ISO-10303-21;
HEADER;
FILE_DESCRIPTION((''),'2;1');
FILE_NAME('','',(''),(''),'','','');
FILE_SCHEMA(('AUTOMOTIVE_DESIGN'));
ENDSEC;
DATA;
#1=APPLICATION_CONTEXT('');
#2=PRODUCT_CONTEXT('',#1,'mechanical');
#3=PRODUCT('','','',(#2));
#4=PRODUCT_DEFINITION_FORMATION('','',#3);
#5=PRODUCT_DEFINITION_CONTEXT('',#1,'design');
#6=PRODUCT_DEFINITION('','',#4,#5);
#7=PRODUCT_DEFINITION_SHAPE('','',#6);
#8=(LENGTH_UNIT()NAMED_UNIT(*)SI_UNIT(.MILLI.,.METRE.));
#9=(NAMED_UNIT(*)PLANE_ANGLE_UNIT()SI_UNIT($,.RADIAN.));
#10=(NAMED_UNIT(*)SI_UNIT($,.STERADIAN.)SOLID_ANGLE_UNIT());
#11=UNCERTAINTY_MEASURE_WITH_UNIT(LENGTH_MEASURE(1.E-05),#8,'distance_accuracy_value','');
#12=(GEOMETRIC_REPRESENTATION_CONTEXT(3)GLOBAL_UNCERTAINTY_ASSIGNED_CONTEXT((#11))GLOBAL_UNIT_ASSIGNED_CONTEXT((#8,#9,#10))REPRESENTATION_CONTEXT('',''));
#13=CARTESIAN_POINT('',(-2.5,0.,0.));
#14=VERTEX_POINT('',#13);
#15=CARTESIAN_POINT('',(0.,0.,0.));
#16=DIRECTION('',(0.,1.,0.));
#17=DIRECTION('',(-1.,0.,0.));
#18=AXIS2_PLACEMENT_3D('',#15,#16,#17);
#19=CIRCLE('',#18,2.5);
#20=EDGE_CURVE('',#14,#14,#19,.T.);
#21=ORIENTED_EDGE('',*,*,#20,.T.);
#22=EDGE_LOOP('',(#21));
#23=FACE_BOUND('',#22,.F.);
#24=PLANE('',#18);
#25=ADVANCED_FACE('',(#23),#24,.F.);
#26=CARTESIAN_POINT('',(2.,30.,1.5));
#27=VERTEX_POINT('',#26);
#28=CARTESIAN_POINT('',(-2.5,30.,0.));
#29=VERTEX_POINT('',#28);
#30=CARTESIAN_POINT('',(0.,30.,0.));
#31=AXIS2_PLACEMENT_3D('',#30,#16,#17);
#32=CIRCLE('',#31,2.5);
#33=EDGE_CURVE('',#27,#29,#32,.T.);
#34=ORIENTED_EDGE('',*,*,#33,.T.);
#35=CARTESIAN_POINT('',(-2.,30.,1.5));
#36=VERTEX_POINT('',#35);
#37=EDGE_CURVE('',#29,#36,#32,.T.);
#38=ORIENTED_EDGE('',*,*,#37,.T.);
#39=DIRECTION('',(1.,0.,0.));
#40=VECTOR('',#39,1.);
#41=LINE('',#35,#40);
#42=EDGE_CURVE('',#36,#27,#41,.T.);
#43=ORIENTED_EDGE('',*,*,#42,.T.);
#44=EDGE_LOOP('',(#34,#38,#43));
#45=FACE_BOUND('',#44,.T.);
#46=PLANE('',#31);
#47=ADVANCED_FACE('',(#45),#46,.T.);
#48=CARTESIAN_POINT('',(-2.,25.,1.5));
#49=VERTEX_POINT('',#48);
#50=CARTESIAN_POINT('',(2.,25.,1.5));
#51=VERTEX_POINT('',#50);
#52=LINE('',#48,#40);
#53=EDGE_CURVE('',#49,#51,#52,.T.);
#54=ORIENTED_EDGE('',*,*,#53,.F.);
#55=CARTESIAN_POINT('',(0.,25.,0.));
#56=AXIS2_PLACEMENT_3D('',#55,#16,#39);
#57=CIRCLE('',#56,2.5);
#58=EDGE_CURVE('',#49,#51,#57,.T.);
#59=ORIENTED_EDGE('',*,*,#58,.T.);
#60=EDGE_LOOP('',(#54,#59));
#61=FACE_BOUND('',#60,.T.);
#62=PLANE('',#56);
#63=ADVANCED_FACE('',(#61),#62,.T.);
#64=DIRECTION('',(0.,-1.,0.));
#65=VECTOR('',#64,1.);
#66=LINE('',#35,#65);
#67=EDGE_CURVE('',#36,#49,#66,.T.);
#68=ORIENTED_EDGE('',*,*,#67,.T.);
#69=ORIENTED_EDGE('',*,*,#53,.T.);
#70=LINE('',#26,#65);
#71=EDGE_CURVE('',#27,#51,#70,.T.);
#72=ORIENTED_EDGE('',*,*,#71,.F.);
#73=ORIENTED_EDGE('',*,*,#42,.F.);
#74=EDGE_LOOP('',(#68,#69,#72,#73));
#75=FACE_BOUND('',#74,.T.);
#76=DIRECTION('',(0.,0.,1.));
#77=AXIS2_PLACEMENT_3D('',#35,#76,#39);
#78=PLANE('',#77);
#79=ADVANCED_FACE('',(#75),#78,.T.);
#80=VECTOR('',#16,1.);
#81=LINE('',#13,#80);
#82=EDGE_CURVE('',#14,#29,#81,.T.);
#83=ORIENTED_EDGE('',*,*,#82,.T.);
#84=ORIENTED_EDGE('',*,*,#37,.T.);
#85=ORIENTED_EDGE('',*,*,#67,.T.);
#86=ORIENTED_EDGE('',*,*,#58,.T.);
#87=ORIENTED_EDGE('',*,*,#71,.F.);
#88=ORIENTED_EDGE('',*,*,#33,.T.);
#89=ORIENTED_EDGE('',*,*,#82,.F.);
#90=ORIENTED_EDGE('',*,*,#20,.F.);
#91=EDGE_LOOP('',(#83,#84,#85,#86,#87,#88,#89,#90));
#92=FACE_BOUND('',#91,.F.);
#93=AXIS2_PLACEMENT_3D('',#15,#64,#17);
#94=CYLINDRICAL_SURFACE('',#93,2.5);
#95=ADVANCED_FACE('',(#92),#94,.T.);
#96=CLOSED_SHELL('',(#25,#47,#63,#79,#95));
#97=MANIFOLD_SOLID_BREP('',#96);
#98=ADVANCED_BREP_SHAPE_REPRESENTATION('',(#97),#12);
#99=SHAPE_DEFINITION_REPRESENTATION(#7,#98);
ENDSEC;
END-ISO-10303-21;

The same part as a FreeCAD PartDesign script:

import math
import FreeCAD as App
import Part
import Sketcher

doc = App.newDocument("Part")
params = doc.addObject("Spreadsheet::Sheet", "Params")
for row, (alias, value) in enumerate([
    ("sketch1_diameter", "5 mm"),
    ("pad1_length", "30 mm"),
    ("sketch2_radius", "2.5 mm"),
    ("pocket1_length", "5 mm"),
], start=1):
    params.set(f"A{row}", alias)
    params.set(f"B{row}", "=" + value)
    params.setAlias(f"B{row}", alias)

body = doc.addObject("PartDesign::Body", "Body")

sketch1 = body.newObject("Sketcher::SketchObject", "Sketch")
sketch1.AttachmentSupport = (doc.getObject("XZ_Plane"), [""])
sketch1.MapMode = "FlatFace"
sketch1.addGeometry(Part.Circle(App.Vector(0, 0, 0), App.Vector(0, 0, 1), 2.5), False)
sketch1.addConstraint([
    Sketcher.Constraint("Coincident", 0, 3, -1, 1),
    Sketcher.Constraint("Diameter", 0, 5.0),
])
sketch1.setExpression("Constraints[1]", "Params.sketch1_diameter")
pad1 = body.newObject("PartDesign::Pad", "Pad")
pad1.Profile = sketch1
pad1.setExpression("Length", "Params.pad1_length")
pad1.Reversed = True

sketch2 = body.newObject("Sketcher::SketchObject", "Sketch001")
sketch2.AttachmentSupport = (doc.getObject("XZ_Plane"), [""])
sketch2.MapMode = "FlatFace"
sketch2.AttachmentOffset = App.Placement(App.Vector(0, 0, -30), App.Rotation())
sketch2.addGeometry([
    Part.LineSegment(App.Vector(2, 1.5, 0), App.Vector(-2, 1.5, 0)),
    Part.ArcOfCircle(Part.Circle(App.Vector(0, 0, 0), App.Vector(0, 0, 1), 2.5), math.radians(37), math.radians(143)),
], False)
sketch2.addConstraint([
    Sketcher.Constraint("Coincident", 0, 1, 1, 1),
    Sketcher.Constraint("Coincident", 1, 2, 0, 2),
    Sketcher.Constraint("Horizontal", 0),
    Sketcher.Constraint("Coincident", 1, 3, -1, 1),
    Sketcher.Constraint("DistanceY", -1, 1, 0, 1, 1.5),
    Sketcher.Constraint("Radius", 1, 2.5),
])
sketch2.setExpression("Constraints[5]", "Params.sketch2_radius")
pocket1 = body.newObject("PartDesign::Pocket", "Pocket")
pocket1.Profile = sketch2
pocket1.setExpression("Length", "Params.pocket1_length")
pocket1.Reversed = True

doc.recompute()
